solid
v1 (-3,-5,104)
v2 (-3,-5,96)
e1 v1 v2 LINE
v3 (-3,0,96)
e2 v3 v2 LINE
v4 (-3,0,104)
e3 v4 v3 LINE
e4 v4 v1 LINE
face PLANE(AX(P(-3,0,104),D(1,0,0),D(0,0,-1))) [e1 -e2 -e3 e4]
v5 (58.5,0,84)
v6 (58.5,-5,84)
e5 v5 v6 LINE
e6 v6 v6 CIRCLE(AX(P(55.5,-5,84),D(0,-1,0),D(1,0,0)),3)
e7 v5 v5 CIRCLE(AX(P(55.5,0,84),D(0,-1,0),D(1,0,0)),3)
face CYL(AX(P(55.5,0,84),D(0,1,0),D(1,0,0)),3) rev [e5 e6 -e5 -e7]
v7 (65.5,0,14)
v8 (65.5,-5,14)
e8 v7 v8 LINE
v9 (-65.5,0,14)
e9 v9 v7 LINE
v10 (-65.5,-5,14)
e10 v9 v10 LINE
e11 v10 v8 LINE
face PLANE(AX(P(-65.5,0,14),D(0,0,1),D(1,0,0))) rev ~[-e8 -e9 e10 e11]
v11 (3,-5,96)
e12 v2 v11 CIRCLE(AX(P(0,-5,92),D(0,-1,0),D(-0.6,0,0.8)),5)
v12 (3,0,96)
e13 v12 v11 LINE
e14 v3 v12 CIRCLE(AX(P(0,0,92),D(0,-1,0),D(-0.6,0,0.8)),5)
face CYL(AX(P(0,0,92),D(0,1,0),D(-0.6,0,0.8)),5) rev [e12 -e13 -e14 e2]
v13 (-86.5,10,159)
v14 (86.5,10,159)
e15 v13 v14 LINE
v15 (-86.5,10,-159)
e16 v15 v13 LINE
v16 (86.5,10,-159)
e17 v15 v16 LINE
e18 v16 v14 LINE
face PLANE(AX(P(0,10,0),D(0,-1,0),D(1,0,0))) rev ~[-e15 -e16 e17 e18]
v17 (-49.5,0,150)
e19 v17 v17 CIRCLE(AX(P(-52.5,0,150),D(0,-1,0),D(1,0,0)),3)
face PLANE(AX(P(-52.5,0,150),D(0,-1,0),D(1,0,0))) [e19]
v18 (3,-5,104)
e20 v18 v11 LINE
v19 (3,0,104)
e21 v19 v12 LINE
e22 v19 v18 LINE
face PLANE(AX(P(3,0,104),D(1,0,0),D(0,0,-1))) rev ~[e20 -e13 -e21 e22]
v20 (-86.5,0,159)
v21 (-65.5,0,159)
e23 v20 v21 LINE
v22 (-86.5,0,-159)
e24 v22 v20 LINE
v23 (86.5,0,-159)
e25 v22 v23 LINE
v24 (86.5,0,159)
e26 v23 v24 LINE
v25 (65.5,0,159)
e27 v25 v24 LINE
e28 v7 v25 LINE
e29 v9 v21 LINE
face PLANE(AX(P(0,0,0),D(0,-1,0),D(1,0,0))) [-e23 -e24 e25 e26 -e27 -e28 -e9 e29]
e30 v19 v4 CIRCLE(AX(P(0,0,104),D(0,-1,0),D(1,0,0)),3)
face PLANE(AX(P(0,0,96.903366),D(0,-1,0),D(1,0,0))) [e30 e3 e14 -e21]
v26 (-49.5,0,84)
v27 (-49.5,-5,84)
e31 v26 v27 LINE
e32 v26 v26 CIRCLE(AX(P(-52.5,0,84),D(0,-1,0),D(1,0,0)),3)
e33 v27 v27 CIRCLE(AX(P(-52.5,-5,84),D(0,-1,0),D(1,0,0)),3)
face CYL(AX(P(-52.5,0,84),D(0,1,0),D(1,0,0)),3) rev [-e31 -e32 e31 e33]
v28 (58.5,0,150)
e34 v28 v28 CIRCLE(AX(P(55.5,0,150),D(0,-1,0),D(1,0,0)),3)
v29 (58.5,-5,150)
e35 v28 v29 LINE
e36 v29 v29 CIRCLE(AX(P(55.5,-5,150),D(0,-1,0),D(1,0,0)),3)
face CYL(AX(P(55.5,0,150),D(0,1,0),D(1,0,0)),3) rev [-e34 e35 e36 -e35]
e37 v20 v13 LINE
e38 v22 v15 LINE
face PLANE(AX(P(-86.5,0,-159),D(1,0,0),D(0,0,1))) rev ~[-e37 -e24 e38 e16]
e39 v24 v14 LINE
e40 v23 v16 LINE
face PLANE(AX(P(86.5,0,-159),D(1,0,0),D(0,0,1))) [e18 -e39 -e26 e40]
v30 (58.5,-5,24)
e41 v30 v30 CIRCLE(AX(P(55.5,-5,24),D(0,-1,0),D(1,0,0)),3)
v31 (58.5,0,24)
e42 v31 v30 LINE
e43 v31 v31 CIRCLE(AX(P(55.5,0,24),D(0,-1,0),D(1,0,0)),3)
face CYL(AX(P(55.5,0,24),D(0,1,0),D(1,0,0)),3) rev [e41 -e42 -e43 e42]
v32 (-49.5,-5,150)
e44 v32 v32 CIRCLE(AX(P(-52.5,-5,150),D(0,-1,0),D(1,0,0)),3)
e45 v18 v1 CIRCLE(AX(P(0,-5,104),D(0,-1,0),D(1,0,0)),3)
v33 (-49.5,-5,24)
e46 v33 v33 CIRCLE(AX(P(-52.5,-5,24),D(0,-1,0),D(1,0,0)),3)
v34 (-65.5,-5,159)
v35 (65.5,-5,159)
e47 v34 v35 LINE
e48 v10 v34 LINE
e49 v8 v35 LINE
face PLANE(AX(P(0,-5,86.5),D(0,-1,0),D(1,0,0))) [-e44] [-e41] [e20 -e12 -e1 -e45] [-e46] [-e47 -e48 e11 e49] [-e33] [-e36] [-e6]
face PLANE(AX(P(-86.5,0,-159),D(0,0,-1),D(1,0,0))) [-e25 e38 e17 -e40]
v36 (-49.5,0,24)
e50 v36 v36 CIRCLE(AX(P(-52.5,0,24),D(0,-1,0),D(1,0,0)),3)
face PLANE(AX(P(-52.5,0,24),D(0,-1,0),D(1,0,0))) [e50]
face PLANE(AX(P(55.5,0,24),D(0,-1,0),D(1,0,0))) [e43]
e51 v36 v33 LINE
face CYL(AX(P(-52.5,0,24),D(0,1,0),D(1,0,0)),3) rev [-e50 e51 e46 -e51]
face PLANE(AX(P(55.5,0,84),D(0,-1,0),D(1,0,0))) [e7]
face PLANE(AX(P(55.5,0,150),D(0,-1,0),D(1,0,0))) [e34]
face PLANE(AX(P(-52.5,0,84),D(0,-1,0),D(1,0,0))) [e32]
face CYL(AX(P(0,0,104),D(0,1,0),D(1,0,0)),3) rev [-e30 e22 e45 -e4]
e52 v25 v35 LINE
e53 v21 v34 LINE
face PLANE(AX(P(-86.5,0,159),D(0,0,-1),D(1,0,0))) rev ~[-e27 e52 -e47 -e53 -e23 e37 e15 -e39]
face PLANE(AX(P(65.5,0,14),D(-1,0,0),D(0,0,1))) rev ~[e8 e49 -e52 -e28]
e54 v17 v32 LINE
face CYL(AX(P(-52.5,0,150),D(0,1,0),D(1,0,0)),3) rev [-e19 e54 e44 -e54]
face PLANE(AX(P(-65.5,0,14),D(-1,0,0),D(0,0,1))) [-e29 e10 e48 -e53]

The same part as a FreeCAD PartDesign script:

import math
import FreeCAD as App
import Part
import Sketcher

V = App.Vector
Q = App.Units.Quantity


def add_polygon(sketch, points):
    """Adds a closed chain of lines whose ends are joined by coincident constraints."""
    first, n = sketch.GeometryCount, len(points)
    for a, b in zip(points, points[1:] + points[:1]):
        sketch.addGeometry(Part.LineSegment(App.Vector(*a, 0), App.Vector(*b, 0)), False)
    for i in range(n):
        sketch.addConstraint(Sketcher.Constraint("Coincident", first + i, 2, first + (i + 1) % n, 1))

doc = App.newDocument("Part")
params = doc.addObject("Spreadsheet::Sheet", "Params")
for row, (alias, value) in enumerate([
    ("sketch1_width", "173 mm"),
    ("sketch1_height", "318 mm"),
    ("pad1_length", "10 mm"),
    ("sketch2_width", "131 mm"),
    ("sketch2_height", "145 mm"),
    ("pad2_length", "5 mm"),
    ("sketch3_diameter", "6 mm"),
    ("sketch3_radius", "5 mm"),
    ("sketch3_height", "8 mm"),
    ("pocket1_length", "5 mm"),
], start=1):
    params.set(f"A{row}", alias)
    params.set(f"B{row}", "=" + value)
    params.setAlias(f"B{row}", alias)

body = doc.addObject("PartDesign::Body", "Body")

# Sketch on XZ plane
sketch1 = doc.addObject("Sketcher::SketchObject", "Sketch")
body.addObject(sketch1)
sketch1.AttachmentSupport = (doc.XZ_Plane, [""])
sketch1.MapMode = "FlatFace"
add_polygon(sketch1, [(-86, 159), (-86, -159), (86, -159), (86, 159)])  # lines 0-3
sketch1.addConstraint([
    Sketcher.Constraint("Vertical", 0),
    Sketcher.Constraint("Horizontal", 1),
    Sketcher.Constraint("Vertical", 2),
    Sketcher.Constraint("Horizontal", 3),
    Sketcher.Constraint("Symmetric", 0, 2, 2, 2, -1, 1),
    Sketcher.Constraint("DistanceX", 1, 1, 1, 2, Q("173 mm")),
    Sketcher.Constraint("DistanceY", 0, 2, 0, 1, Q("318 mm")),
])
sketch1.setExpression("Constraints[9]", "Params.sketch1_width")
sketch1.setExpression("Constraints[10]", "Params.sketch1_height")
pad1 = doc.addObject("PartDesign::Pad", "Pad")
body.addObject(pad1)
pad1.Profile = sketch1
pad1.setExpression("Length", "Params.pad1_length")
pad1.Reversed = True

# Sketch on XZ plane
sketch2 = doc.addObject("Sketcher::SketchObject", "Sketch001")
body.addObject(sketch2)
sketch2.AttachmentSupport = (doc.XZ_Plane, [""])
sketch2.MapMode = "FlatFace"
add_polygon(sketch2, [(-66, 159), (-66, 14), (66, 14), (66, 159)])  # lines 0-3
sketch2.addConstraint([
    Sketcher.Constraint("Vertical", 0),
    Sketcher.Constraint("Horizontal", 1),
    Sketcher.Constraint("Vertical", 2),
    Sketcher.Constraint("Horizontal", 3),
    Sketcher.Constraint("DistanceX", 1, 1, 1, 2, Q("131 mm")),
    Sketcher.Constraint("DistanceY", 0, 2, 0, 1, Q("145 mm")),
    Sketcher.Constraint("DistanceY", -1, 1, 0, 2, Q("14 mm")),
    Sketcher.Constraint("DistanceX", 0, 2, -1, 1, Q("65.5 mm")),
])
sketch2.setExpression("Constraints[8]", "Params.sketch2_width")
sketch2.setExpression("Constraints[9]", "Params.sketch2_height")
pad2 = doc.addObject("PartDesign::Pad", "Pad001")
body.addObject(pad2)
pad2.Profile = sketch2
pad2.setExpression("Length", "Params.pad2_length")

# Sketch on XZ plane
sketch3 = doc.addObject("Sketcher::SketchObject", "Sketch002")
body.addObject(sketch3)
sketch3.AttachmentSupport = (doc.XZ_Plane, [""])
sketch3.MapMode = "FlatFace"
sketch3.addGeometry([
    Part.Circle(V(-52.5, 150, 0), V(0, 0, 1), 3),  # 0
    Part.Circle(V(-52.5, 84, 0), V(0, 0, 1), 3),  # 1
    Part.Circle(V(-52.5, 24, 0), V(0, 0, 1), 3),  # 2
    Part.Circle(V(55.5, 150, 0), V(0, 0, 1), 3),  # 3
    Part.Circle(V(55.5, 84, 0), V(0, 0, 1), 3),  # 4
    Part.Circle(V(55.5, 24, 0), V(0, 0, 1), 3),  # 5
    Part.ArcOfCircle(Part.Circle(V(0, 104, 0), V(0, 0, 1), 3), math.radians(0), math.radians(180)),  # 6
    Part.LineSegment(V(-3, 104, 0), V(-3, 96, 0)),  # 7
    Part.ArcOfCircle(Part.Circle(V(0, 92, 0), V(0, 0, 1), 5), math.radians(127), math.radians(413)),  # 8
    Part.LineSegment(V(3, 96, 0), V(3, 104, 0)),  # 9
], False)
sketch3.addConstraint([
    Sketcher.Constraint("Tangent", 6, 2, 7, 1),
    Sketcher.Constraint("Coincident", 7, 2, 8, 1),
    Sketcher.Constraint("Coincident", 8, 2, 9, 1),
    Sketcher.Constraint("Tangent", 9, 2, 6, 1),
    Sketcher.Constraint("Vertical", 7),
    Sketcher.Constraint("Vertical", 9),
    Sketcher.Constraint("Equal", 0, 1),
    Sketcher.Constraint("Equal", 1, 2),
    Sketcher.Constraint("Equal", 2, 3),
    Sketcher.Constraint("Equal", 3, 4),
    Sketcher.Constraint("Equal", 4, 5),
    Sketcher.Constraint("Equal", 5, 6),
    Sketcher.Constraint("Symmetric", 7, 2, 8, 2, -2),
    Sketcher.Constraint("Horizontal", 0, 3, 3, 3),
    Sketcher.Constraint("Horizontal", 1, 3, 4, 3),
    Sketcher.Constraint("Horizontal", 2, 3, 5, 3),
    Sketcher.Constraint("Vertical", 0, 3, 1, 3),
    Sketcher.Constraint("Vertical", 1, 3, 2, 3),
    Sketcher.Constraint("Vertical", 3, 3, 4, 3),
    Sketcher.Constraint("Vertical", 4, 3, 5, 3),
    Sketcher.Constraint("Diameter", 0, Q("6 mm")),
    Sketcher.Constraint("Radius", 8, Q("5 mm")),
    Sketcher.Constraint("DistanceY", 7, 2, 7, 1, Q("8 mm")),
    Sketcher.Constraint("DistanceY", -1, 1, 0, 3, Q("150 mm")),
    Sketcher.Constraint("DistanceY", -1, 1, 1, 3, Q("84 mm")),
    Sketcher.Constraint("DistanceY", -1, 1, 2, 3, Q("24 mm")),
    Sketcher.Constraint("DistanceY", -1, 1, 6, 3, Q("104 mm")),
    Sketcher.Constraint("DistanceX", 0, 3, 3, 3, Q("108 mm")),
    Sketcher.Constraint("DistanceX", 0, 3, -1, 1, Q("52.5 mm")),
])
sketch3.setExpression("Constraints[20]", "Params.sketch3_diameter")
sketch3.setExpression("Constraints[21]", "Params.sketch3_radius")
sketch3.setExpression("Constraints[22]", "Params.sketch3_height")
pocket1 = doc.addObject("PartDesign::Pocket", "Pocket")
body.addObject(pocket1)
pocket1.Profile = sketch3
pocket1.setExpression("Length", "Params.pocket1_length")
pocket1.Reversed = True

doc.recompute()
